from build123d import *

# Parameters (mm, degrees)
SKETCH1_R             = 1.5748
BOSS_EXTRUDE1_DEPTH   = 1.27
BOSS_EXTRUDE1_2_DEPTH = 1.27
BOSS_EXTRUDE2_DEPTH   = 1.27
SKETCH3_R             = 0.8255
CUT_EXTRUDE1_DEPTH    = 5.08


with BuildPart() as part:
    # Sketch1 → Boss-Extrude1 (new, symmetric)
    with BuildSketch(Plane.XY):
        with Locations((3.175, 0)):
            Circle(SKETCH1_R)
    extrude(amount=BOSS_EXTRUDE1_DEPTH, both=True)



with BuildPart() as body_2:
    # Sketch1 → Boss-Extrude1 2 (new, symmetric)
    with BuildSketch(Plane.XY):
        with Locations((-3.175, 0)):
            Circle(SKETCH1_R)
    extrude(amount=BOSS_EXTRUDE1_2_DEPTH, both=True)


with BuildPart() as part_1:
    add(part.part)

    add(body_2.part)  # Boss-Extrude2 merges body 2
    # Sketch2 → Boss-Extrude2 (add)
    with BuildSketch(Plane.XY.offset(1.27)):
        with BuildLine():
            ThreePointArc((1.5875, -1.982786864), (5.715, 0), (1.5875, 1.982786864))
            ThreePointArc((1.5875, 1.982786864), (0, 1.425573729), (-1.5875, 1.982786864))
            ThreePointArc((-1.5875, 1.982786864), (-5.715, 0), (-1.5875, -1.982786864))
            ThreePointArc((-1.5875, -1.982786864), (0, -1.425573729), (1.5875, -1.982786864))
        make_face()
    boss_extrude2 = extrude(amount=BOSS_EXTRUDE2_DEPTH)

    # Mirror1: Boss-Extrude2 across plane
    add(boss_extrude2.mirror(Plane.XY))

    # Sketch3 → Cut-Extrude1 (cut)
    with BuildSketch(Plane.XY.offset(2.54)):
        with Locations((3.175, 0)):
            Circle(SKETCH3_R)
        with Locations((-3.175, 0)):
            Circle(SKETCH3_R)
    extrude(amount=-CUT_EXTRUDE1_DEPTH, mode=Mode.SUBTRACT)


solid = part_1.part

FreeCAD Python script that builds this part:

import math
import FreeCAD as App
import Part
import Sketcher
from FreeCAD import Vector
Q = App.Units.Quantity

doc = App.newDocument("Part")
body = doc.addObject("PartDesign::Body", "Body")

# Sketch on XY plane
sketch1 = body.newObject("Sketcher::SketchObject", "Sketch")
sketch1.AttachmentSupport = (doc.getObject("XY_Plane"), [""])
sketch1.MapMode = "FlatFace"
sketch1.addGeometry(Part.Circle(Vector(3.175, 0, 0), Vector(0, 0, 1), 1.5748), False)
sketch1.addConstraint([
    Sketcher.Constraint("PointOnObject", 0, 3, -1),
    Sketcher.Constraint("Diameter", 0, Q("0.124 in")),
    Sketcher.Constraint("DistanceX", -1, 1, 0, 3, Q("0.125 in")),
])
pad1 = body.newObject("PartDesign::Pad", "Pad")
pad1.Profile = sketch1
pad1.Length = Q("0.1 in")
pad1.Midplane = True
body2 = doc.addObject("PartDesign::Body", "Body001")

# Sketch on XY plane
sketch2 = body2.newObject("Sketcher::SketchObject", "Sketch001")
sketch2.AttachmentSupport = (doc.getObject("XY_Plane001"), [""])
sketch2.MapMode = "FlatFace"
sketch2.addGeometry(Part.Circle(Vector(-3.175, 0, 0), Vector(0, 0, 1), 1.5748), False)
sketch2.addConstraint([
    Sketcher.Constraint("PointOnObject", 0, 3, -1),
    Sketcher.Constraint("Diameter", 0, Q("0.124 in")),
    Sketcher.Constraint("DistanceX", 0, 3, -1, 1, Q("0.125 in")),
])
pad2 = body2.newObject("PartDesign::Pad", "Pad001")
pad2.Profile = sketch2
pad2.Length = Q("0.1 in")
pad2.Midplane = True
body.AllowCompound = True
doc.recompute()

boolean = body.newObject("PartDesign::Boolean", "Boolean")
boolean.Type = "Fuse"
boolean.addObjects([body2])

# Sketch on XY plane
sketch3 = body.newObject("Sketcher::SketchObject", "Sketch002")
sketch3.AttachmentSupport = (doc.getObject("XY_Plane"), [""])
sketch3.MapMode = "FlatFace"
sketch3.AttachmentOffset = App.Placement(Vector(0, 0, 0.05 * 25.4), App.Rotation())
sketch3.addGeometry([
    Part.ArcOfCircle(Part.Circle(Vector(3.175, 0, 0), Vector(0, 0, 1), 2.54), math.radians(-128.682187), math.radians(128.682187)),
    Part.ArcOfCircle(Part.Circle(Vector(0, 3.965574, 0), Vector(0, 0, 1), 2.54), math.radians(-128.682187), math.radians(-51.317813)),
    Part.ArcOfCircle(Part.Circle(Vector(-3.175, 0, 0), Vector(0, 0, 1), 2.54), math.radians(51.317813), math.radians(308.682187)),
    Part.ArcOfCircle(Part.Circle(Vector(0, -3.965574, 0), Vector(0, 0, 1), 2.54), math.radians(51.317813), math.radians(128.682187)),
], False)
sketch3.addConstraint([
    Sketcher.Constraint("Tangent", 0, 2, 1, 2),
    Sketcher.Constraint("Tangent", 1, 1, 2, 1),
    Sketcher.Constraint("Tangent", 2, 2, 3, 2),
    Sketcher.Constraint("Tangent", 3, 1, 0, 1),
    Sketcher.Constraint("Equal", 0, 1),
    Sketcher.Constraint("Equal", 1, 2),
    Sketcher.Constraint("Equal", 2, 3),
    Sketcher.Constraint("Symmetric", 0, 3, 2, 3, -1, 1),
    Sketcher.Constraint("PointOnObject", 0, 3, -1),
    Sketcher.Constraint("Radius", 0, Q("0.1 in")),
    Sketcher.Constraint("DistanceX", 2, 3, 0, 3, Q("0.25 in")),
])
pad3 = body.newObject("PartDesign::Pad", "Pad002")
pad3.Profile = sketch3
pad3.Length = Q("0.05 in")
doc.recompute()

mirrored = body.newObject("PartDesign::Mirrored", "Mirrored")
mirrored.Originals = [pad3]
mirrored.MirrorPlane = (doc.getObject("XY_Plane"), [""])
body.Tip = mirrored

# Sketch on XY plane
sketch4 = body.newObject("Sketcher::SketchObject", "Sketch003")
sketch4.AttachmentSupport = (doc.getObject("XY_Plane"), [""])
sketch4.MapMode = "FlatFace"
sketch4.AttachmentOffset = App.Placement(Vector(0, 0, 0.1 * 25.4), App.Rotation())
sketch4.addGeometry([
    Part.Circle(Vector(3.175, 0, 0), Vector(0, 0, 1), 0.8255),
    Part.Circle(Vector(-3.175, 0, 0), Vector(0, 0, 1), 0.8255),
], False)
sketch4.addConstraint([
    Sketcher.Constraint("Equal", 0, 1),
    Sketcher.Constraint("Symmetric", 0, 3, 1, 3, -1, 1),
    Sketcher.Constraint("PointOnObject", 0, 3, -1),
    Sketcher.Constraint("Diameter", 0, Q("0.065 in")),
    Sketcher.Constraint("DistanceX", 1, 3, 0, 3, Q("0.25 in")),
])
pocket1 = body.newObject("PartDesign::Pocket", "Pocket")
pocket1.Profile = sketch4
pocket1.Length = Q("0.2 in")

doc.recompute()
